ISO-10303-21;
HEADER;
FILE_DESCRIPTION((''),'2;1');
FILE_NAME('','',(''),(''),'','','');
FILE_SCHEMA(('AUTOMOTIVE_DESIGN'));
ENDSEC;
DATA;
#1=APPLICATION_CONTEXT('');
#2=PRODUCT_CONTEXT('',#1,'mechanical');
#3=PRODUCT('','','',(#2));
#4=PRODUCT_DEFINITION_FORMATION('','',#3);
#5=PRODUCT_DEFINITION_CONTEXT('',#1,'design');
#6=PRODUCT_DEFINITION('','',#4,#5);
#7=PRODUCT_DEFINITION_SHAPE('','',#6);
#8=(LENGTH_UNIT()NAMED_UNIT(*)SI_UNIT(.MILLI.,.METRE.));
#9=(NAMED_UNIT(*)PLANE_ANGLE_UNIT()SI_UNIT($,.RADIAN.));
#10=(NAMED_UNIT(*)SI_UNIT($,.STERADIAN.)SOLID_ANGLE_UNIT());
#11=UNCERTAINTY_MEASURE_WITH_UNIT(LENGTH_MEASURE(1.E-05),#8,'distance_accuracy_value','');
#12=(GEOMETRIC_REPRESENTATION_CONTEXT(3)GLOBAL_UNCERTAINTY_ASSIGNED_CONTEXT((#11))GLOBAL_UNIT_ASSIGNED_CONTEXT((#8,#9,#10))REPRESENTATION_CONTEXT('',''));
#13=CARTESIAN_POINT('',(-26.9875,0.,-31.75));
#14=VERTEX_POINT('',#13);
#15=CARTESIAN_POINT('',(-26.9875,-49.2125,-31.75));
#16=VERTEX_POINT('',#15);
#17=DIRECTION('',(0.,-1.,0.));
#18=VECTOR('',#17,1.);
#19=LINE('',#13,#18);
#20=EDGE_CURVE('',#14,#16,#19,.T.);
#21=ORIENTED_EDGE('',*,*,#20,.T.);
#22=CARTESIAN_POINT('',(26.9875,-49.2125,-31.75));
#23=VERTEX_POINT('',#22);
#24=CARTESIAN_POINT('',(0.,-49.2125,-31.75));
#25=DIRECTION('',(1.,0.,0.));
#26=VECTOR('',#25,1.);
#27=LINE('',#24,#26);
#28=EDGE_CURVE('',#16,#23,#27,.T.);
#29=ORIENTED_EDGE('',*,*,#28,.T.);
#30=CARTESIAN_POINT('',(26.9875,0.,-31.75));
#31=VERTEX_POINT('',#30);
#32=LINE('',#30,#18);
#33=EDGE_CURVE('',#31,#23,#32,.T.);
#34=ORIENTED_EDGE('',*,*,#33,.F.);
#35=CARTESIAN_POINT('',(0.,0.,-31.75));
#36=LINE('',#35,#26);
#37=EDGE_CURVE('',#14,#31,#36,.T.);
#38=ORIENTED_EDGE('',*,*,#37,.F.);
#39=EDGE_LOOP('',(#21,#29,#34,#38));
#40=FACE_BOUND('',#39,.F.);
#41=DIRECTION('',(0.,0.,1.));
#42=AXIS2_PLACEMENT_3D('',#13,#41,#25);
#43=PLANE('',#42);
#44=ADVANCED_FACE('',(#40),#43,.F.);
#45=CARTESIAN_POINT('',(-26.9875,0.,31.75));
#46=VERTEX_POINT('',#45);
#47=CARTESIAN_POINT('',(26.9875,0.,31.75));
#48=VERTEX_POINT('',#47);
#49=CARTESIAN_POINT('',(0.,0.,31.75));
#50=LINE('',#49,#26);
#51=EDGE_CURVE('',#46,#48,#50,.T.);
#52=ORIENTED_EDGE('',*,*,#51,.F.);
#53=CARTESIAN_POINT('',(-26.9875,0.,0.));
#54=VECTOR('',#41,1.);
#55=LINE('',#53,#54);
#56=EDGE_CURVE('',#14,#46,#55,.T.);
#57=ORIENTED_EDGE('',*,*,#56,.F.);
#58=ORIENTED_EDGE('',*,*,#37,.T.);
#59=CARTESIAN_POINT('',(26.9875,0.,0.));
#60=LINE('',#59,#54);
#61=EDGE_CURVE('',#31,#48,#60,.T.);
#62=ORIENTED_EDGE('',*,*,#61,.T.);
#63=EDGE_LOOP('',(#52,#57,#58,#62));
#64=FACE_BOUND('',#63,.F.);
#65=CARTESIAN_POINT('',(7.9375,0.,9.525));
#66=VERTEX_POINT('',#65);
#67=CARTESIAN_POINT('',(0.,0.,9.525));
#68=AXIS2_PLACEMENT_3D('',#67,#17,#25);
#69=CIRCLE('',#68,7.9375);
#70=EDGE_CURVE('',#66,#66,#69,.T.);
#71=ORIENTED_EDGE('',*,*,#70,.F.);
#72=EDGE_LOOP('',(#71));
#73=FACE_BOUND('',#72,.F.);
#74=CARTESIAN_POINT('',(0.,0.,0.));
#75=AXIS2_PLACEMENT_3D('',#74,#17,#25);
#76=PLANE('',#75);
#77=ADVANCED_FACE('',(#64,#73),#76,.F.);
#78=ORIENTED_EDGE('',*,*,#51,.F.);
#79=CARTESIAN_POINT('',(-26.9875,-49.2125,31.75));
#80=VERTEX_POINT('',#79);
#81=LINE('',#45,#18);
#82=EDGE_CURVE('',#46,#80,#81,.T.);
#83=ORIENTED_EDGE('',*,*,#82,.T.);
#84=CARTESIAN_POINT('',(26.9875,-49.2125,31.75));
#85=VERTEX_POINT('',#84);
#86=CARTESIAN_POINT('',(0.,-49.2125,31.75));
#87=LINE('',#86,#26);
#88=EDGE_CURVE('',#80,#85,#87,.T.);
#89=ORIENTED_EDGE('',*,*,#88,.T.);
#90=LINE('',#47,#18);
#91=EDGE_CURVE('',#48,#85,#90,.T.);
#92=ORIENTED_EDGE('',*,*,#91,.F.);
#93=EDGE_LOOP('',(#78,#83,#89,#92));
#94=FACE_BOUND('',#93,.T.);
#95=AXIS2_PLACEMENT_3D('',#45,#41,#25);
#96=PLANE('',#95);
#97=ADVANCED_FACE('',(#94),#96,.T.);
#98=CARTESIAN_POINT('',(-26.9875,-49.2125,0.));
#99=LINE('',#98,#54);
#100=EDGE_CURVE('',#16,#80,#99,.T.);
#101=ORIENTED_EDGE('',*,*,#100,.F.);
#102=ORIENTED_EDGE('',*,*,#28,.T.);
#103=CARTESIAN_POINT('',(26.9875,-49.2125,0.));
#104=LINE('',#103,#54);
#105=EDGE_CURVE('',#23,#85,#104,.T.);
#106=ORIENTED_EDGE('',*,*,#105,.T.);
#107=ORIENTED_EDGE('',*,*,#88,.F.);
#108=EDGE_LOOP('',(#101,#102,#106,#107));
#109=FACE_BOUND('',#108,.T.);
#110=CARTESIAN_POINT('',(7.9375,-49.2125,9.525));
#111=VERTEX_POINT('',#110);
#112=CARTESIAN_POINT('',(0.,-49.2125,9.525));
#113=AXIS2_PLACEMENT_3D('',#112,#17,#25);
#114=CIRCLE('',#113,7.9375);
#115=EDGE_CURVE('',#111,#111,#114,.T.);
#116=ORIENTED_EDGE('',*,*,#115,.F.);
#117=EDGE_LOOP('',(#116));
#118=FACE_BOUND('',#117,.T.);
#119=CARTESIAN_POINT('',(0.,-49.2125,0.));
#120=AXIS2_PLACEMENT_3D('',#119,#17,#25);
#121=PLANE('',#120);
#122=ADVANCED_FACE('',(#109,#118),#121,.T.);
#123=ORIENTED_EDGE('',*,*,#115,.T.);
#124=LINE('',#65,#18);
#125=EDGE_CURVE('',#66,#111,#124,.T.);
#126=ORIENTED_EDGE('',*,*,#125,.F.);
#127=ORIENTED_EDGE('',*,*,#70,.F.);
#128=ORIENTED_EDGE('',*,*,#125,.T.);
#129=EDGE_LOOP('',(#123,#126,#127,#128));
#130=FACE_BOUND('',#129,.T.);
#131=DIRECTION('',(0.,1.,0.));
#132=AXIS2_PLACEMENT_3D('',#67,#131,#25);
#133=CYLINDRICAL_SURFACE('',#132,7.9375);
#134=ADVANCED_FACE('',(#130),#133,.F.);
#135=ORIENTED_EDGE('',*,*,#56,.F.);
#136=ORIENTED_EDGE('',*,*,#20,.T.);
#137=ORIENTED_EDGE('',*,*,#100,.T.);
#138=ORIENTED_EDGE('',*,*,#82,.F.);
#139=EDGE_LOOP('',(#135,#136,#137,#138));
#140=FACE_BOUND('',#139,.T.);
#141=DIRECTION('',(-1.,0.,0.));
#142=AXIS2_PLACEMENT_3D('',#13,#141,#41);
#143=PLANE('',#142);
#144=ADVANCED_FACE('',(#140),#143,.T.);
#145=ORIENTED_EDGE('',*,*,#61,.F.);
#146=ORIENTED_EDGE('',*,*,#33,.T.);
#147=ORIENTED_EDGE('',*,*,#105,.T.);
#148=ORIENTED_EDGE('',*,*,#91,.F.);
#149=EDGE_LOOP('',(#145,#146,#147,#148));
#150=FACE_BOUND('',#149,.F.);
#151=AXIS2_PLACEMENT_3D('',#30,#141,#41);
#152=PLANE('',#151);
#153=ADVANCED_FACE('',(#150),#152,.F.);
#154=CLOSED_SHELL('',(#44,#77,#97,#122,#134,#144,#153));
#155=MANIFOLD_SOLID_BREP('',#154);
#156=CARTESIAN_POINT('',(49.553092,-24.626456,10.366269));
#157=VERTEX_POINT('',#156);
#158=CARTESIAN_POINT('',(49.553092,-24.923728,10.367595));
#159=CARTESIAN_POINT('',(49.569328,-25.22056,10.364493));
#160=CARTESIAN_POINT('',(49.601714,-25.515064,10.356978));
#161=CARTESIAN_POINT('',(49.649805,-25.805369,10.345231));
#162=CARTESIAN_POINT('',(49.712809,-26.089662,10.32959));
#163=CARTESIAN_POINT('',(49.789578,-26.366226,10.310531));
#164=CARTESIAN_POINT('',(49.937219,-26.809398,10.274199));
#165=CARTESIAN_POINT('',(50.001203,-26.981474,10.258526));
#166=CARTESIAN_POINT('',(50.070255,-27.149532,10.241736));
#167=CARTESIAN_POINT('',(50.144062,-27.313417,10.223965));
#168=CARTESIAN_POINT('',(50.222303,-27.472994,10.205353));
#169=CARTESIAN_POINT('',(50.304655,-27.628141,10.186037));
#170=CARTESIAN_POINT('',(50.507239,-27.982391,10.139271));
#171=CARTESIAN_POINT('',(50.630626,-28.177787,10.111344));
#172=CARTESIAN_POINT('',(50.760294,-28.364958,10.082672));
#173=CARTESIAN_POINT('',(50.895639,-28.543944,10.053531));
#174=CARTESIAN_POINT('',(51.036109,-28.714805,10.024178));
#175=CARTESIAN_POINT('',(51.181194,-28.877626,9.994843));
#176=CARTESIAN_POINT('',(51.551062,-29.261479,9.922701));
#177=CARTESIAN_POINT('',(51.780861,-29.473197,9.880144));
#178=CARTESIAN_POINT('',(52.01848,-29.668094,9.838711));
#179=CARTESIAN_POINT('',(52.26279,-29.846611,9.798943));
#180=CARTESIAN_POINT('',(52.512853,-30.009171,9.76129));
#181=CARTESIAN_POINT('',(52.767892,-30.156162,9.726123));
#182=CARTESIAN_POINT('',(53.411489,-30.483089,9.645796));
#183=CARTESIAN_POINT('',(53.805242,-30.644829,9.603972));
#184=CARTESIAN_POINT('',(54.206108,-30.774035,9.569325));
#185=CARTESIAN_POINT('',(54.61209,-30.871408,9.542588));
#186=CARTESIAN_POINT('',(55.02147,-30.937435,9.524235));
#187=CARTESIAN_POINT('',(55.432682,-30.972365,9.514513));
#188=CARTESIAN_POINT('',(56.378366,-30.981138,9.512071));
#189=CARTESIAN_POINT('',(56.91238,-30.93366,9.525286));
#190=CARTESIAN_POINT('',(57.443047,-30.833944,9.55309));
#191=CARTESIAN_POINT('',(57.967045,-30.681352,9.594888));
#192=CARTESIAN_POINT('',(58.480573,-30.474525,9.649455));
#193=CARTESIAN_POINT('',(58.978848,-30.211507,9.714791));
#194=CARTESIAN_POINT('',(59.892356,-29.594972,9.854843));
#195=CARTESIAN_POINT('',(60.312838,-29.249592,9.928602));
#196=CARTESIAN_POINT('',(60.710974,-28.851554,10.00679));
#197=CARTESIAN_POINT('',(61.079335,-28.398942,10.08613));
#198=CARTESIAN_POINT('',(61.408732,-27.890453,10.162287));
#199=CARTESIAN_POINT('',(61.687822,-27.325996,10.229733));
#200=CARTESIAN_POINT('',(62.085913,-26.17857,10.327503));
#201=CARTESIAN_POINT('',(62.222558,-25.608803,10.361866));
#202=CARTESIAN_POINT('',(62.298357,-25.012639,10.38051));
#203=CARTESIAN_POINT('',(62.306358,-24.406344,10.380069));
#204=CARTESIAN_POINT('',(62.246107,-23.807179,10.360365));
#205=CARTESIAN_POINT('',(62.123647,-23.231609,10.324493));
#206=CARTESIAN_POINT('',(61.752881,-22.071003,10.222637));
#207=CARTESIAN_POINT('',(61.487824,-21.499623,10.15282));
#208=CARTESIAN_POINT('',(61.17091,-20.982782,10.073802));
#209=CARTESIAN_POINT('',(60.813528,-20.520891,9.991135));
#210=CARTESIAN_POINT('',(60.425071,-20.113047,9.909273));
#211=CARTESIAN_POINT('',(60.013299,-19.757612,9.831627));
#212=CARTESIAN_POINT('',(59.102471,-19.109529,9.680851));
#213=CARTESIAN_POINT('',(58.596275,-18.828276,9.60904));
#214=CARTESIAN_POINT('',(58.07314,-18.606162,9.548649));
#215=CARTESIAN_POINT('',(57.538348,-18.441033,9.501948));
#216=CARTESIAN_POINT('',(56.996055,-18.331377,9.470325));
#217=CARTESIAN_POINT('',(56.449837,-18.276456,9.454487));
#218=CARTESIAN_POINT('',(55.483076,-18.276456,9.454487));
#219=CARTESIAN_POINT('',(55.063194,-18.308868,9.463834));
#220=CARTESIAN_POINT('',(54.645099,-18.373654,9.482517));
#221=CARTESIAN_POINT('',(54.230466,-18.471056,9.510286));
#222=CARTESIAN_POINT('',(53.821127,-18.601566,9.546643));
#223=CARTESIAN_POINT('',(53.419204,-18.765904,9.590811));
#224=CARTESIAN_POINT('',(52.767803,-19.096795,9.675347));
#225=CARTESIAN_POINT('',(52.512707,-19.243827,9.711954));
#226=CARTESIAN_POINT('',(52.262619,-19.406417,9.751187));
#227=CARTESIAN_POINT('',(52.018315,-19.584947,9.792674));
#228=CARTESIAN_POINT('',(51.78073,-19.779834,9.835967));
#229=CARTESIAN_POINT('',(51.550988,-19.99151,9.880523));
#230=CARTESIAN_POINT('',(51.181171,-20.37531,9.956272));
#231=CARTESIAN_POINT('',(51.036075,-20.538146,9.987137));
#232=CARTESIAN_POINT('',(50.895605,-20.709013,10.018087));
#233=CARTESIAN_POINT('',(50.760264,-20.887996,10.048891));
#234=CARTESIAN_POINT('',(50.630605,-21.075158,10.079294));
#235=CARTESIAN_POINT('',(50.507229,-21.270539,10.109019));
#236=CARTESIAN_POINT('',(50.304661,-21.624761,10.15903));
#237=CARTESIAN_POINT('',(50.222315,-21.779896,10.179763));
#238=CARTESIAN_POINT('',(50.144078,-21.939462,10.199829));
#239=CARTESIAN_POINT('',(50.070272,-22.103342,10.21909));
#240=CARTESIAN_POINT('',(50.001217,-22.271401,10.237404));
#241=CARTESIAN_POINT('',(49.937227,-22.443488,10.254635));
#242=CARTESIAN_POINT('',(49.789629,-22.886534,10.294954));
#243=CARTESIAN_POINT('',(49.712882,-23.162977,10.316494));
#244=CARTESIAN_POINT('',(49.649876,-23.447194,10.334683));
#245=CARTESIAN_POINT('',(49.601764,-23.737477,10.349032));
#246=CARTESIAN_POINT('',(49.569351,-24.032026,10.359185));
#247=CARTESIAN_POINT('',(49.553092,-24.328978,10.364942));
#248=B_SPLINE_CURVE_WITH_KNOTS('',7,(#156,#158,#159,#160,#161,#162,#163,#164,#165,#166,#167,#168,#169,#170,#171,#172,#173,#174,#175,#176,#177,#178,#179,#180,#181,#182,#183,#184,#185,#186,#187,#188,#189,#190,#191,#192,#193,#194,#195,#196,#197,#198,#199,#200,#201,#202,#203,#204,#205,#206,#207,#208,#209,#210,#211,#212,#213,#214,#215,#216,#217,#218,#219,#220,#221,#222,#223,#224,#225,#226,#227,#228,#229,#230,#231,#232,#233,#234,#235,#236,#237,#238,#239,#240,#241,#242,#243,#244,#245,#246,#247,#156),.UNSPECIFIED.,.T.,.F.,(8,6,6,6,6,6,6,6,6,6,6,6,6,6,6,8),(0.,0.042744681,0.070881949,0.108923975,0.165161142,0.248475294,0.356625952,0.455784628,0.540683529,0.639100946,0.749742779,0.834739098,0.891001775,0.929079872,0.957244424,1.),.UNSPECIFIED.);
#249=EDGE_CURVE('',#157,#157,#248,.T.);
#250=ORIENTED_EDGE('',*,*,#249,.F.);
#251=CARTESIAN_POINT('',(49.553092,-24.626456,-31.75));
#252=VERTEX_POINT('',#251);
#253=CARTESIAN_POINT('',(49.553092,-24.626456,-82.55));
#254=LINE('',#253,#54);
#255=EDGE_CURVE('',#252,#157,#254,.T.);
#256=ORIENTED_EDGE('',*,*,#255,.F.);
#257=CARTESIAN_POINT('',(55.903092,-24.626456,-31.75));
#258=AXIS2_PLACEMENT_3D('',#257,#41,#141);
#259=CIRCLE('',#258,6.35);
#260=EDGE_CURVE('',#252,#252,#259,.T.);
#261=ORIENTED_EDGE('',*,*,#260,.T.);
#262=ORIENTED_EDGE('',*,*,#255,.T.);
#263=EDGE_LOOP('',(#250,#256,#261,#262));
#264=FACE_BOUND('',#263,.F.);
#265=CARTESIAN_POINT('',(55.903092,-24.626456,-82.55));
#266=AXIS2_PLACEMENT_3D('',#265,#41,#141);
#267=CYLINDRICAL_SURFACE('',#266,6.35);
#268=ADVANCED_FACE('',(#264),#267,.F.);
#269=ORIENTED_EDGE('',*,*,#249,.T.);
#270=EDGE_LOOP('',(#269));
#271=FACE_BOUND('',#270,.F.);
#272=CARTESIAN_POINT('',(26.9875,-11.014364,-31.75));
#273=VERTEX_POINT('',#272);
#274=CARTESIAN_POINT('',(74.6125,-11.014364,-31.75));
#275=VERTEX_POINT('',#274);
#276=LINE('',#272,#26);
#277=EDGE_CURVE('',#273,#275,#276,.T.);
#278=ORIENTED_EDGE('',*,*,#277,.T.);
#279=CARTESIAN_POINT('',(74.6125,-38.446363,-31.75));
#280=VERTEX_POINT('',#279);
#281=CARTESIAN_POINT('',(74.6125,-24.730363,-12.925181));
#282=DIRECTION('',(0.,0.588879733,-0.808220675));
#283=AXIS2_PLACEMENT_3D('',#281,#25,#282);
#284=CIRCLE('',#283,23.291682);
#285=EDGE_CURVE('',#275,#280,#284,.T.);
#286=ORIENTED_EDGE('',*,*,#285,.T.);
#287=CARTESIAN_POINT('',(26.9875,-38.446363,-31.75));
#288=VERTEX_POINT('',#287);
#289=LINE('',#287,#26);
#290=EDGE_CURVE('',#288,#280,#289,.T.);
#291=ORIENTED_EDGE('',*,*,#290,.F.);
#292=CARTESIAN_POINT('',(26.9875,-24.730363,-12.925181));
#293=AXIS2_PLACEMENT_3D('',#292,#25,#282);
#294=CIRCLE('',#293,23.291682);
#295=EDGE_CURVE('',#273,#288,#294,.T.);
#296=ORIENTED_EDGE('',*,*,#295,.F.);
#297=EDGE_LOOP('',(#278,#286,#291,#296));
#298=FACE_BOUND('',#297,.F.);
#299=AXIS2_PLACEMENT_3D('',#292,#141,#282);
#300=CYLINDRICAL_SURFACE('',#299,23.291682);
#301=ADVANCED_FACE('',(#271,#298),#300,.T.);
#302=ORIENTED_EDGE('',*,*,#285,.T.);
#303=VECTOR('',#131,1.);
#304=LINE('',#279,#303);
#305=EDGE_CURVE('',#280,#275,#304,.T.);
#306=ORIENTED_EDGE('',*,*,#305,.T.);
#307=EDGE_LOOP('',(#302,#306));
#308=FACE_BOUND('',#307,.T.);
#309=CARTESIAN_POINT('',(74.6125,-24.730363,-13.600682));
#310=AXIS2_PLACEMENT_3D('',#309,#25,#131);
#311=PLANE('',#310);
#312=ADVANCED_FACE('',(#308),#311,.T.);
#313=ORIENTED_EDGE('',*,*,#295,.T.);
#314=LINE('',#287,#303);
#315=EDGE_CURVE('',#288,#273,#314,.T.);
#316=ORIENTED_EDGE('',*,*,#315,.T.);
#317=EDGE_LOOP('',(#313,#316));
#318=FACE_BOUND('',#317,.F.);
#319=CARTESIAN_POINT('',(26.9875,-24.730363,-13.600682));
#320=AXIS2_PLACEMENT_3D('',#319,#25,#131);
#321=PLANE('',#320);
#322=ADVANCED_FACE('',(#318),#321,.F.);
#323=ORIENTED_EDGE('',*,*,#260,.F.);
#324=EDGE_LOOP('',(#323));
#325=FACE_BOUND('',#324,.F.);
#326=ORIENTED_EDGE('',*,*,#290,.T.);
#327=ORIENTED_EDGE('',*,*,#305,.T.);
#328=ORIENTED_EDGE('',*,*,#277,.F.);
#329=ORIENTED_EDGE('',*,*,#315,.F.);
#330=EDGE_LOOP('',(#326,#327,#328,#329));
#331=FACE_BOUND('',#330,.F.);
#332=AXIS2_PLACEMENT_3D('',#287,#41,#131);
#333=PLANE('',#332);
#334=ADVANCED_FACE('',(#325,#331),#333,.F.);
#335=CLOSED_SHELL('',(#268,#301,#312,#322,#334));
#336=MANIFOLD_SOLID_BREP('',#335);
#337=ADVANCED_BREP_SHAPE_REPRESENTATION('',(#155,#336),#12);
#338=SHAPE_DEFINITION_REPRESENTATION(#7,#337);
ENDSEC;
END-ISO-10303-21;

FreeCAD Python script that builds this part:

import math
import FreeCAD as App
import Part
import Sketcher

V = App.Vector
Q = App.Units.Quantity

doc = App.newDocument("Part")
body = doc.addObject("PartDesign::Body", "Body")

sketch1 = body.newObject("Sketcher::SketchObject", "Sketch")
sketch1.AttachmentSupport = (doc.getObject("XZ_Plane"), [""])
sketch1.MapMode = "FlatFace"
sketch1.addGeometry(Part.LineSegment(V(-26.9875, 31.75, 0), V(-26.9875, -31.75, 0)), False)
sketch1.addGeometry(Part.LineSegment(V(-26.9875, -31.75, 0), V(26.9875, -31.75, 0)), False)
sketch1.addGeometry(Part.LineSegment(V(26.9875, -31.75, 0), V(26.9875, 31.75, 0)), False)
sketch1.addGeometry(Part.LineSegment(V(26.9875, 31.75, 0), V(-26.9875, 31.75, 0)), False)
sketch1.addGeometry(Part.Circle(V(0, 9.525, 0), V(0, 0, 1), 7.9375), False)
sketch1.addConstraint(Sketcher.Constraint("Coincident", 0, 2, 1, 1))
sketch1.addConstraint(Sketcher.Constraint("Coincident", 1, 2, 2, 1))
sketch1.addConstraint(Sketcher.Constraint("Coincident", 2, 2, 3, 1))
sketch1.addConstraint(Sketcher.Constraint("Coincident", 3, 2, 0, 1))
sketch1.addConstraint(Sketcher.Constraint("Vertical", 0))
sketch1.addConstraint(Sketcher.Constraint("Horizontal", 1))
sketch1.addConstraint(Sketcher.Constraint("Vertical", 2))
sketch1.addConstraint(Sketcher.Constraint("Horizontal", 3))
sketch1.addConstraint(Sketcher.Constraint("Symmetric", 0, 2, 2, 2, -1, 1))
sketch1.addConstraint(Sketcher.Constraint("PointOnObject", 4, 3, -2))
sketch1.addConstraint(Sketcher.Constraint("Diameter", 4, Q("0.625 in")))
sketch1.addConstraint(Sketcher.Constraint("DistanceY", 0, 2, 0, 1, Q("2.5 in")))
sketch1.addConstraint(Sketcher.Constraint("DistanceX", 1, 1, 1, 2, Q("2.125 in")))
sketch1.addConstraint(Sketcher.Constraint("DistanceY", -1, 1, 4, 3, Q("0.375 in")))
pad1 = body.newObject("PartDesign::Pad", "Pad")
pad1.Profile = sketch1
pad1.Length = Q("1.9375 in")
body2 = doc.addObject("PartDesign::Body", "Body001")

sketch2 = body2.newObject("Sketcher::SketchObject", "Sketch001")
sketch2.AttachmentSupport = (doc.getObject("YZ_Plane001"), [""])
sketch2.MapMode = "FlatFace"
sketch2.AttachmentOffset = App.Placement(V(0, 0, 1.0625 * 25.4), App.Rotation())
sketch2.addGeometry(Part.LineSegment(V(-38.446363, -31.75, 0), V(-11.014364, -31.75, 0)), False)
sketch2.addGeometry(Part.ArcOfCircle(Part.Circle(V(-24.730363, -12.925181, 0), V(0, 0, 1), 23.291682), math.radians(-53.922449), math.radians(233.922449)), False)
sketch2.addConstraint(Sketcher.Constraint("Coincident", 0, 1, 1, 2))
sketch2.addConstraint(Sketcher.Constraint("Coincident", 1, 1, 0, 2))
sketch2.addConstraint(Sketcher.Constraint("Horizontal", 0))
sketch2.addConstraint(Sketcher.Constraint("DistanceX", 0, 1, 0, 2, Q("1.08 in")))
sketch2.addConstraint(Sketcher.Constraint("DistanceY", 0, 1, -1, 1, Q("1.25 in")))
sketch2.addConstraint(Sketcher.Constraint("Radius", 1, 23.291682))
sketch2.addConstraint(Sketcher.Constraint("DistanceX", 1, 3, -1, 1, 24.730363))
pad2 = body2.newObject("PartDesign::Pad", "Pad001")
pad2.Profile = sketch2
pad2.Length = Q("1.875 in")

sketch3 = body2.newObject("Sketcher::SketchObject", "Sketch002")
sketch3.AttachmentSupport = (doc.getObject("XY_Plane001"), [""])
sketch3.MapMode = "FlatFace"
sketch3.AttachmentOffset = App.Placement(V(0, 0, -1.25 * 25.4), App.Rotation())
sketch3.addGeometry(Part.Circle(V(55.903092, -24.626456, 0), V(0, 0, 1), 6.35), False)
sketch3.addConstraint(Sketcher.Constraint("Diameter", 0, Q("0.5 in")))
sketch3.addConstraint(Sketcher.Constraint("DistanceX", -1, 1, 0, 3, 55.903092))
sketch3.addConstraint(Sketcher.Constraint("DistanceY", 0, 3, -1, 1, 24.626456))
doc.recompute()
hole = body2.newObject("PartDesign::Hole", "Hole")
hole.Profile = sketch3
hole.ThreadType = "None"
hole.Diameter = Q("0.5 in")
hole.DepthType = "Dimension"
hole.Depth = Q("2 in")
hole.DrillPoint = "Flat"
hole.Reversed = True

doc.recompute()
